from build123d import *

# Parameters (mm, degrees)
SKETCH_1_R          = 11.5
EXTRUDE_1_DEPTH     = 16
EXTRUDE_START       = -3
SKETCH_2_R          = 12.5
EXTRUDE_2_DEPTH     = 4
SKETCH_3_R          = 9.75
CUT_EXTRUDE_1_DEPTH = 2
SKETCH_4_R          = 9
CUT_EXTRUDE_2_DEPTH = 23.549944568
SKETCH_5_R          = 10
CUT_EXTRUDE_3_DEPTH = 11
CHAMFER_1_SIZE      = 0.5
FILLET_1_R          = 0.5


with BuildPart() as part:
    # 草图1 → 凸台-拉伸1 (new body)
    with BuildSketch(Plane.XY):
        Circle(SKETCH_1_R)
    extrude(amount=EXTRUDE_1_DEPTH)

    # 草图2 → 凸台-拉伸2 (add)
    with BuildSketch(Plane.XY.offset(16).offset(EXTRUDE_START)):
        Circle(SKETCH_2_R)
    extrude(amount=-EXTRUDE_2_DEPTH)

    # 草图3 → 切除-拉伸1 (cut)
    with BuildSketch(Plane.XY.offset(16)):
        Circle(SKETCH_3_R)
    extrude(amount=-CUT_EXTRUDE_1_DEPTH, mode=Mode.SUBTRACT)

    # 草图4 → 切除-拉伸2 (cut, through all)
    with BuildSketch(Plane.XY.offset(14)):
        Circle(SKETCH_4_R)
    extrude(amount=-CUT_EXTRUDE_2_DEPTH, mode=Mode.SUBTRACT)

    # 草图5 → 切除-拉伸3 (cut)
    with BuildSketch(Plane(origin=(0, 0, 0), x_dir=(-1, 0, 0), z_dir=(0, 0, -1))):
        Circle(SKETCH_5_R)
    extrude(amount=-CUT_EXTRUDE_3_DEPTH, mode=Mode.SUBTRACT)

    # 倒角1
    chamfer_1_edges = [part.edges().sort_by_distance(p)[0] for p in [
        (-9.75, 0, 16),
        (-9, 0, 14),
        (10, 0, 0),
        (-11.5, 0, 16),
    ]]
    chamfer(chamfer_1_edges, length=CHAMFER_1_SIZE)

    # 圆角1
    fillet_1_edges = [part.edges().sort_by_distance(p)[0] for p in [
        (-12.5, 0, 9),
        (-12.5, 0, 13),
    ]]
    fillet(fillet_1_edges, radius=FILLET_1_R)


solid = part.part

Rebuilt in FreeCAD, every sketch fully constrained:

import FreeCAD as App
import Part
import Sketcher

V = App.Vector


def edges_at(feature, points):
    """Names of the edges that pass closest to the given points."""
    edges = feature.Shape.Edges
    near = lambda p: min(range(len(edges)), key=lambda i: edges[i].distToShape(Part.Vertex(*p))[0])
    return sorted({f"Edge{near(p) + 1}" for p in points})

doc = App.newDocument("Part")
params = doc.addObject("Spreadsheet::Sheet", "Params")
for row, (alias, value) in enumerate([
    ("sketch1_diameter", "23 mm"),
    ("pad1_length", "16 mm"),
    ("sketch2_diameter", "25 mm"),
    ("pad2_length", "4 mm"),
    ("sketch3_diameter", "19.5 mm"),
    ("pocket1_length", "2 mm"),
    ("sketch4_diameter", "18 mm"),
    ("sketch5_diameter", "20 mm"),
    ("pocket3_length", "11 mm"),
    ("chamfer_size", "0.5 mm"),
    ("fillet_radius", "0.5 mm"),
], start=1):
    params.set(f"A{row}", alias)
    params.set(f"B{row}", "=" + value)
    params.setAlias(f"B{row}", alias)

body = doc.addObject("PartDesign::Body", "Body")

# Sketch on XY plane
sketch1 = body.newObject("Sketcher::SketchObject", "Sketch")
sketch1.AttachmentSupport = (doc.getObject("XY_Plane"), [""])
sketch1.MapMode = "FlatFace"
sketch1.addGeometry(Part.Circle(V(0, 0, 0), V(0, 0, 1), 12), False)
sketch1.addConstraint([
    Sketcher.Constraint("Coincident", 0, 3, -1, 1),
    Sketcher.Constraint("Diameter", 0, 23.0),
])
sketch1.setExpression("Constraints[1]", "Params.sketch1_diameter")
pad1 = body.newObject("PartDesign::Pad", "Pad")
pad1.Profile = sketch1
pad1.setExpression("Length", "Params.pad1_length")

# Sketch on XY plane
sketch2 = body.newObject("Sketcher::SketchObject", "Sketch001")
sketch2.AttachmentSupport = (doc.getObject("XY_Plane"), [""])
sketch2.MapMode = "FlatFace"
sketch2.AttachmentOffset = App.Placement(V(0, 0, 13), App.Rotation())
sketch2.addGeometry(Part.Circle(V(0, 0, 0), V(0, 0, 1), 12), False)
sketch2.addConstraint([
    Sketcher.Constraint("Coincident", 0, 3, -1, 1),
    Sketcher.Constraint("Diameter", 0, 25.0),
])
sketch2.setExpression("Constraints[1]", "Params.sketch2_diameter")
pad2 = body.newObject("PartDesign::Pad", "Pad001")
pad2.Profile = sketch2
pad2.setExpression("Length", "Params.pad2_length")
pad2.Reversed = True

# Sketch on XY plane
sketch3 = body.newObject("Sketcher::SketchObject", "Sketch002")
sketch3.AttachmentSupport = (doc.getObject("XY_Plane"), [""])
sketch3.MapMode = "FlatFace"
sketch3.AttachmentOffset = App.Placement(V(0, 0, 16), App.Rotation())
sketch3.addGeometry(Part.Circle(V(0, 0, 0), V(0, 0, 1), 10), False)
sketch3.addConstraint([
    Sketcher.Constraint("Coincident", 0, 3, -1, 1),
    Sketcher.Constraint("Diameter", 0, 19.5),
])
sketch3.setExpression("Constraints[1]", "Params.sketch3_diameter")
pocket1 = body.newObject("PartDesign::Pocket", "Pocket")
pocket1.Profile = sketch3
pocket1.setExpression("Length", "Params.pocket1_length")

# Sketch on XY plane
sketch4 = body.newObject("Sketcher::SketchObject", "Sketch003")
sketch4.AttachmentSupport = (doc.getObject("XY_Plane"), [""])
sketch4.MapMode = "FlatFace"
sketch4.AttachmentOffset = App.Placement(V(0, 0, 14), App.Rotation())
sketch4.addGeometry(Part.Circle(V(0, 0, 0), V(0, 0, 1), 9), False)
sketch4.addConstraint([
    Sketcher.Constraint("Coincident", 0, 3, -1, 1),
    Sketcher.Constraint("Diameter", 0, 18.0),
])
sketch4.setExpression("Constraints[1]", "Params.sketch4_diameter")
pocket2 = body.newObject("PartDesign::Pocket", "Pocket001")
pocket2.Profile = sketch4
pocket2.Type = "ThroughAll"

# Sketch on XY plane
sketch5 = body.newObject("Sketcher::SketchObject", "Sketch004")
sketch5.AttachmentSupport = (doc.getObject("XY_Plane"), [""])
sketch5.MapMode = "FlatFace"
sketch5.addGeometry(Part.Circle(V(0, 0, 0), V(0, 0, 1), 10), False)
sketch5.addConstraint([
    Sketcher.Constraint("Coincident", 0, 3, -1, 1),
    Sketcher.Constraint("Diameter", 0, 20.0),
])
sketch5.setExpression("Constraints[1]", "Params.sketch5_diameter")
pocket3 = body.newObject("PartDesign::Pocket", "Pocket002")
pocket3.Profile = sketch5
pocket3.setExpression("Length", "Params.pocket3_length")
pocket3.Reversed = True
doc.recompute()

chamfer = body.newObject("PartDesign::Chamfer", "Chamfer")
chamfer.Base = (pocket3, edges_at(pocket3, [
    (-9.75, 0, 16),
    (-9, 0, 14),
    (10, 0, 0),
    (-11.5, 0, 16),
]))
chamfer.setExpression("Size", "Params.chamfer_size")
doc.recompute()

fillet = body.newObject("PartDesign::Fillet", "Fillet")
fillet.Base = (chamfer, edges_at(chamfer, [(-12.5, 0, 9), (-12.5, 0, 13)]))
fillet.setExpression("Radius", "Params.fillet_radius")

doc.recompute()
